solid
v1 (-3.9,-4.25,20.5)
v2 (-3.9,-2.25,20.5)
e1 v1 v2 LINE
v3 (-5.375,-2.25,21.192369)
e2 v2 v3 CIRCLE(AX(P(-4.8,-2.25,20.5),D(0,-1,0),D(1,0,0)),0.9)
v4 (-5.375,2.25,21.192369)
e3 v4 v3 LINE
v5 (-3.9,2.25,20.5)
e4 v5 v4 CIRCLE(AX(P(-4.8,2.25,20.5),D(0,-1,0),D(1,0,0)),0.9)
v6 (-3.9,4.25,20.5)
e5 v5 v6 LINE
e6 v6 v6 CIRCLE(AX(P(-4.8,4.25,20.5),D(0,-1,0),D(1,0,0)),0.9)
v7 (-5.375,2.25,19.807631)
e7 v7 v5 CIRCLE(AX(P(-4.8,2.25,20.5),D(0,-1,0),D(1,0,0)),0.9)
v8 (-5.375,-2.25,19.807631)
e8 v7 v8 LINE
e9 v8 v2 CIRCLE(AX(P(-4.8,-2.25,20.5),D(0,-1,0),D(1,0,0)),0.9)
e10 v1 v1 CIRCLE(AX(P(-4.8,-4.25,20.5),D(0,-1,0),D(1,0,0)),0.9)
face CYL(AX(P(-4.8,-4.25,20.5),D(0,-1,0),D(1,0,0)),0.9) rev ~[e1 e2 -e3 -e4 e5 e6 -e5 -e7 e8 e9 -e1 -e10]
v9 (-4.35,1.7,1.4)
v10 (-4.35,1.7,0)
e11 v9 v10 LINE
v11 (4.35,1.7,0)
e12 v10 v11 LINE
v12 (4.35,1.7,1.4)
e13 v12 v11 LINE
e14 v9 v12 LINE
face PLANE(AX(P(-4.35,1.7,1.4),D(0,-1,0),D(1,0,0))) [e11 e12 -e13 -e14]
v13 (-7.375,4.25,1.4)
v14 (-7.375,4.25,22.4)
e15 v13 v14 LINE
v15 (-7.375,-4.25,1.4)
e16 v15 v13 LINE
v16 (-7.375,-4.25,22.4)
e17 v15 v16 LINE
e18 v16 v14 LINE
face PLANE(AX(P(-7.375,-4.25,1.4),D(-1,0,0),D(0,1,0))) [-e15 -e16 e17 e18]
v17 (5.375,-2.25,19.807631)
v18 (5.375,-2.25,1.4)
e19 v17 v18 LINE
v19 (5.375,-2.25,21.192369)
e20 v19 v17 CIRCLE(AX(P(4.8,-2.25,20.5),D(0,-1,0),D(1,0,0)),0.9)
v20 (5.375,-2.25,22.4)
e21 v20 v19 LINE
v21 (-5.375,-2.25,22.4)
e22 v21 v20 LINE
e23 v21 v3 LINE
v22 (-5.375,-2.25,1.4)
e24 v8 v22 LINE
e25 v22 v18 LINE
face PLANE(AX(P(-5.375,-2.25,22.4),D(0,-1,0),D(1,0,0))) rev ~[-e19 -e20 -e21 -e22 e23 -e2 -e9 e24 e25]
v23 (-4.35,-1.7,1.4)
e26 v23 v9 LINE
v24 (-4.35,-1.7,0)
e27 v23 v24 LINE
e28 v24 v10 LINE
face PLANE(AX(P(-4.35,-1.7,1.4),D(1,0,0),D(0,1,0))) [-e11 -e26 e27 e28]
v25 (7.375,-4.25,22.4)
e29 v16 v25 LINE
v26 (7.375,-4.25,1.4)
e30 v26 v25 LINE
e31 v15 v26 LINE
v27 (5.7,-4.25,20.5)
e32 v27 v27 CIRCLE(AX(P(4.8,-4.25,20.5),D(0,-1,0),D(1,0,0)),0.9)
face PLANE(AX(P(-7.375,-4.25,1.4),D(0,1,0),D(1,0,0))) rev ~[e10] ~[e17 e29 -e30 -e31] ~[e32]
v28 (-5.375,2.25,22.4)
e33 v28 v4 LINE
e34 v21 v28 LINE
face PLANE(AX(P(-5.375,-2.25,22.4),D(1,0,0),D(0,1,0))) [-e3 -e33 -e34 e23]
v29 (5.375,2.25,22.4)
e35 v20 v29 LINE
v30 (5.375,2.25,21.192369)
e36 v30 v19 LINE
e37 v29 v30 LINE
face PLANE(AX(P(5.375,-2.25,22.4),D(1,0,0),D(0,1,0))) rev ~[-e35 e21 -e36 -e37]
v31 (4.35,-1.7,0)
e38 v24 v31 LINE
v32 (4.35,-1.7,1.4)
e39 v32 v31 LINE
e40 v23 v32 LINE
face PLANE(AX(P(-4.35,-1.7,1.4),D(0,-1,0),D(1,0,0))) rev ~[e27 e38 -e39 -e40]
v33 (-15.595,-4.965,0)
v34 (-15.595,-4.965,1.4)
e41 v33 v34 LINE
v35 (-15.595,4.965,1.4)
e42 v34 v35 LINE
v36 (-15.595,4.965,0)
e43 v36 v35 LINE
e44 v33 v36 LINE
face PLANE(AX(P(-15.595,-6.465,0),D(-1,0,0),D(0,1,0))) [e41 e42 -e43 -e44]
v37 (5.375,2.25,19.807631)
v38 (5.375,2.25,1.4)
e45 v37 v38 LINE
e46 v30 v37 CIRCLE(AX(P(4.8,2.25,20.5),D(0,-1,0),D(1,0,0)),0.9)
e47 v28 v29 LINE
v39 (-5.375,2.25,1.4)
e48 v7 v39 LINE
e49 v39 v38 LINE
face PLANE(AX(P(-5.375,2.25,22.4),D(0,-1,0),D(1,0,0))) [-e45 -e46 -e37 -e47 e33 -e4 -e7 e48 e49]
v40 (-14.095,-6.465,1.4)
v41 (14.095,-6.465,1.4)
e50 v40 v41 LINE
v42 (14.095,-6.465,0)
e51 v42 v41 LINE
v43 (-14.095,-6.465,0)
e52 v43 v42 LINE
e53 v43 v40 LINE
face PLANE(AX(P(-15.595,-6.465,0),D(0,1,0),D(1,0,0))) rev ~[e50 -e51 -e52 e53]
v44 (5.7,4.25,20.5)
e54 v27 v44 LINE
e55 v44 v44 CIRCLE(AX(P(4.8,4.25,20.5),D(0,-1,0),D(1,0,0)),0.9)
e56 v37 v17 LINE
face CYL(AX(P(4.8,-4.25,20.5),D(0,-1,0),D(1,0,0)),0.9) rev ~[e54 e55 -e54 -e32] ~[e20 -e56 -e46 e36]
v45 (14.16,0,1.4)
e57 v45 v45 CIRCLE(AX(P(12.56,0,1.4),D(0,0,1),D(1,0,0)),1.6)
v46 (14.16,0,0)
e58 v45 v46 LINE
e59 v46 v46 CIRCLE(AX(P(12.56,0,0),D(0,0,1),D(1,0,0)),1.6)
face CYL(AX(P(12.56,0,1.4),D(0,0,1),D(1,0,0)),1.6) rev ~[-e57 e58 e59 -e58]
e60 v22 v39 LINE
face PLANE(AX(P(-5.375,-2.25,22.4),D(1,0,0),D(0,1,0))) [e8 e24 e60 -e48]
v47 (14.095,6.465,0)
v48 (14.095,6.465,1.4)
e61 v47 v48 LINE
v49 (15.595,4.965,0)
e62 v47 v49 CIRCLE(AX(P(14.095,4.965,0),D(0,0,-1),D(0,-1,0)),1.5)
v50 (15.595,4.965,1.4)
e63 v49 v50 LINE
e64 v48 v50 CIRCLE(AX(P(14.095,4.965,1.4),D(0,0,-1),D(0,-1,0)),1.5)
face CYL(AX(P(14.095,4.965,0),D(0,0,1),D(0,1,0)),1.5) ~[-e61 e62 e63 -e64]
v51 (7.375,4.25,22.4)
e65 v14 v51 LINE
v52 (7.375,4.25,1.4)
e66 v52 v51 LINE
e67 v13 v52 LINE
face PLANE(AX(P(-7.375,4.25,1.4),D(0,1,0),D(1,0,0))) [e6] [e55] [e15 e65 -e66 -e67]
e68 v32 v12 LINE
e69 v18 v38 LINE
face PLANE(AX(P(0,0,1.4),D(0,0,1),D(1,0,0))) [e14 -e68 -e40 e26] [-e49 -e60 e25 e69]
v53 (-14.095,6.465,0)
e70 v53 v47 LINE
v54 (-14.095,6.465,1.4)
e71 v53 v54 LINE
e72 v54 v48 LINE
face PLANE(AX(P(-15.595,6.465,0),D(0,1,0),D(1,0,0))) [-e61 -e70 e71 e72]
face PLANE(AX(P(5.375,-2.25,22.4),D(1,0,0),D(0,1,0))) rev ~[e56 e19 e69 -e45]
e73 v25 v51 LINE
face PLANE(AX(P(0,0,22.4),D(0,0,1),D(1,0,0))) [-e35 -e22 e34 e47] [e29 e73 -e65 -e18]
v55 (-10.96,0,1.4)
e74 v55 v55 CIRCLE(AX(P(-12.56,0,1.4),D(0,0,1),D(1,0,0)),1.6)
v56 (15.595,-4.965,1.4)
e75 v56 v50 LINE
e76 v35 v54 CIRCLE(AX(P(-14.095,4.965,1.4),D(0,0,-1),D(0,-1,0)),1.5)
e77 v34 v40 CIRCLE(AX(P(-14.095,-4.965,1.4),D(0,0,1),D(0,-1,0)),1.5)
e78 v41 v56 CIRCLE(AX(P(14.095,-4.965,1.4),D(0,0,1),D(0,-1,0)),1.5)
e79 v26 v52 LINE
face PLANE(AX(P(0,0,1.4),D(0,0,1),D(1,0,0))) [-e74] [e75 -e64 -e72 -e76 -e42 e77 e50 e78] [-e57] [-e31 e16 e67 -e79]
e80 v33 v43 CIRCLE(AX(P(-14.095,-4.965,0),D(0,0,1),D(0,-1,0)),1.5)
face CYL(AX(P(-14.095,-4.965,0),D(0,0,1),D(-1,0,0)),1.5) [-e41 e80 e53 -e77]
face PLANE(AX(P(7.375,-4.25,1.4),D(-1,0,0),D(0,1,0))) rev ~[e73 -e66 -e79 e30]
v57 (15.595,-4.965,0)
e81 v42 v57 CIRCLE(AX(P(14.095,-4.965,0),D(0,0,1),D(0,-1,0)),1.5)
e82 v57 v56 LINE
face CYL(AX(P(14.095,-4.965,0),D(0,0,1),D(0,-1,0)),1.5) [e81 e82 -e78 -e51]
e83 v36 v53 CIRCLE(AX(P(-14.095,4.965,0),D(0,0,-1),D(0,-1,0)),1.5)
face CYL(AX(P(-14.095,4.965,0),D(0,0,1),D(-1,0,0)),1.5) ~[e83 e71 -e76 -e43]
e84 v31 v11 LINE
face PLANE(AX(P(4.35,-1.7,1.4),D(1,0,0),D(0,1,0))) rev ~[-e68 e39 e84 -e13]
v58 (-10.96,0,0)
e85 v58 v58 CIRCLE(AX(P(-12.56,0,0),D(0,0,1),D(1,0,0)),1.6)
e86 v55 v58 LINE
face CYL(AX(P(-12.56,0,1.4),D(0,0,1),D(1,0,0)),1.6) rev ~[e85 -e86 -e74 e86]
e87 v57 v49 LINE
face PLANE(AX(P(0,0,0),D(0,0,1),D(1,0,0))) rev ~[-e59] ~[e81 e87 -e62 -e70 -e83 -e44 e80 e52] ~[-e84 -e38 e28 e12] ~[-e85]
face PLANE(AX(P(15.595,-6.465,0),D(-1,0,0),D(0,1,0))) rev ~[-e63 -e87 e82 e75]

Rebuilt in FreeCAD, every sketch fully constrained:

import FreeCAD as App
import Part
import Sketcher


def edges_at(feature, points):
    """Names of the edges that pass closest to the given points."""
    edges = feature.Shape.Edges
    near = lambda p: min(range(len(edges)), key=lambda i: edges[i].distToShape(Part.Vertex(*p))[0])
    return sorted({f"Edge{near(p) + 1}" for p in points})

doc = App.newDocument("Part")
body = doc.addObject("PartDesign::Body", "Body")

sketch1 = body.newObject("Sketcher::SketchObject", "Sketch")
sketch1.AttachmentSupport = (doc.getObject("XY_Plane"), [""])
sketch1.MapMode = "FlatFace"
sketch1.addGeometry([
    Part.LineSegment(App.Vector(-16, 6, 0), App.Vector(-16, -6, 0)),
    Part.LineSegment(App.Vector(-16, -6, 0), App.Vector(16, -6, 0)),
    Part.LineSegment(App.Vector(16, -6, 0), App.Vector(16, 6, 0)),
    Part.LineSegment(App.Vector(16, 6, 0), App.Vector(-16, 6, 0)),
], False)
sketch1.addConstraint([
    Sketcher.Constraint("Coincident", 0, 2, 1, 1),
    Sketcher.Constraint("Coincident", 1, 2, 2, 1),
    Sketcher.Constraint("Coincident", 2, 2, 3, 1),
    Sketcher.Constraint("Coincident", 3, 2, 0, 1),
    Sketcher.Constraint("Vertical", 0),
    Sketcher.Constraint("Horizontal", 1),
    Sketcher.Constraint("Vertical", 2),
    Sketcher.Constraint("Horizontal", 3),
    Sketcher.Constraint("Symmetric", 0, 2, 2, 2, -1, 1),
    Sketcher.Constraint("DistanceX", 1, 1, 1, 2, 31.19),
    Sketcher.Constraint("DistanceY", 0, 2, 0, 1, 12.93),
])
pad1 = body.newObject("PartDesign::Pad", "Pad")
pad1.Profile = sketch1
pad1.Length = 1.4

sketch2 = body.newObject("Sketcher::SketchObject", "Sketch001")
sketch2.AttachmentSupport = (doc.getObject("XY_Plane"), [""])
sketch2.MapMode = "FlatFace"
sketch2.AttachmentOffset = App.Placement(App.Vector(0, 0, 1.4), App.Rotation())
sketch2.addGeometry([
    Part.Circle(App.Vector(-12.6, 0, 0), App.Vector(0, 0, 1), 1.6),
    Part.Circle(App.Vector(12.6, 0, 0), App.Vector(0, 0, 1), 1.6),
], False)
sketch2.addConstraint([
    Sketcher.Constraint("Equal", 0, 1),
    Sketcher.Constraint("Symmetric", 0, 3, 1, 3, -1, 1),
    Sketcher.Constraint("PointOnObject", 0, 3, -1),
    Sketcher.Constraint("Diameter", 0, 3.2),
    Sketcher.Constraint("DistanceX", 0, 3, -1, 1, 12.56),
])
pocket1 = body.newObject("PartDesign::Pocket", "Pocket")
pocket1.Profile = sketch2
pocket1.Type = "ThroughAll"
doc.recompute()

fillet = body.newObject("PartDesign::Fillet", "Fillet")
fillet.Base = (pocket1, edges_at(pocket1, [
    (15.595, -6.465, 0.7),
    (15.595, 6.465, 0.7),
    (-15.595, -6.465, 0.7),
    (-15.595, 6.465, 0.7),
]))
fillet.Radius = 1.5

sketch3 = body.newObject("Sketcher::SketchObject", "Sketch002")
sketch3.AttachmentSupport = (doc.getObject("XY_Plane"), [""])
sketch3.MapMode = "FlatFace"
sketch3.AttachmentOffset = App.Placement(App.Vector(0, 0, 1.4), App.Rotation())
sketch3.addGeometry([
    Part.LineSegment(App.Vector(-4.3, 1.7, 0), App.Vector(-4.3, -1.7, 0)),
    Part.LineSegment(App.Vector(-4.3, -1.7, 0), App.Vector(4.3, -1.7, 0)),
    Part.LineSegment(App.Vector(4.3, -1.7, 0), App.Vector(4.3, 1.7, 0)),
    Part.LineSegment(App.Vector(4.3, 1.7, 0), App.Vector(-4.3, 1.7, 0)),
], False)
sketch3.addConstraint([
    Sketcher.Constraint("Coincident", 0, 2, 1, 1),
    Sketcher.Constraint("Coincident", 1, 2, 2, 1),
    Sketcher.Constraint("Coincident", 2, 2, 3, 1),
    Sketcher.Constraint("Coincident", 3, 2, 0, 1),
    Sketcher.Constraint("Vertical", 0),
    Sketcher.Constraint("Horizontal", 1),
    Sketcher.Constraint("Vertical", 2),
    Sketcher.Constraint("Horizontal", 3),
    Sketcher.Constraint("Symmetric", 0, 2, 2, 2, -1, 1),
    Sketcher.Constraint("DistanceX", 1, 1, 1, 2, 8.7),
    Sketcher.Constraint("DistanceY", 0, 2, 0, 1, 3.4),
])
pocket2 = body.newObject("PartDesign::Pocket", "Pocket001")
pocket2.Profile = sketch3
pocket2.Type = "ThroughAll"

sketch4 = body.newObject("Sketcher::SketchObject", "Sketch003")
sketch4.AttachmentSupport = (doc.getObject("XY_Plane"), [""])
sketch4.MapMode = "FlatFace"
sketch4.AttachmentOffset = App.Placement(App.Vector(0, 0, 1.4), App.Rotation())
sketch4.addGeometry([
    Part.LineSegment(App.Vector(-7, 4, 0), App.Vector(-7, -4, 0)),
    Part.LineSegment(App.Vector(-7, -4, 0), App.Vector(7, -4, 0)),
    Part.LineSegment(App.Vector(7, -4, 0), App.Vector(7, 4, 0)),
    Part.LineSegment(App.Vector(7, 4, 0), App.Vector(-7, 4, 0)),
], False)
sketch4.addConstraint([
    Sketcher.Constraint("Coincident", 0, 2, 1, 1),
    Sketcher.Constraint("Coincident", 1, 2, 2, 1),
    Sketcher.Constraint("Coincident", 2, 2, 3, 1),
    Sketcher.Constraint("Coincident", 3, 2, 0, 1),
    Sketcher.Constraint("Vertical", 0),
    Sketcher.Constraint("Horizontal", 1),
    Sketcher.Constraint("Vertical", 2),
    Sketcher.Constraint("Horizontal", 3),
    Sketcher.Constraint("Symmetric", 0, 2, 2, 2, -1, 1),
    Sketcher.Constraint("DistanceY", 0, 2, 0, 1, 8.5),
    Sketcher.Constraint("DistanceX", 1, 1, 1, 2, 14.75),
])
pad2 = body.newObject("PartDesign::Pad", "Pad001")
pad2.Profile = sketch4
pad2.Length = 21

sketch5 = body.newObject("Sketcher::SketchObject", "Sketch004")
sketch5.AttachmentSupport = (doc.getObject("XY_Plane"), [""])
sketch5.MapMode = "FlatFace"
sketch5.AttachmentOffset = App.Placement(App.Vector(0, 0, 22.4), App.Rotation())
sketch5.addGeometry([
    Part.LineSegment(App.Vector(-5.4, 2.2, 0), App.Vector(-5.4, -2.2, 0)),
    Part.LineSegment(App.Vector(-5.4, -2.2, 0), App.Vector(5.4, -2.2, 0)),
    Part.LineSegment(App.Vector(5.4, -2.2, 0), App.Vector(5.4, 2.2, 0)),
    Part.LineSegment(App.Vector(5.4, 2.2, 0), App.Vector(-5.4, 2.2, 0)),
], False)
sketch5.addConstraint([
    Sketcher.Constraint("Coincident", 0, 2, 1, 1),
    Sketcher.Constraint("Coincident", 1, 2, 2, 1),
    Sketcher.Constraint("Coincident", 2, 2, 3, 1),
    Sketcher.Constraint("Coincident", 3, 2, 0, 1),
    Sketcher.Constraint("Vertical", 0),
    Sketcher.Constraint("Horizontal", 1),
    Sketcher.Constraint("Vertical", 2),
    Sketcher.Constraint("Horizontal", 3),
    Sketcher.Constraint("Symmetric", 0, 2, 2, 2, -1, 1),
    Sketcher.Constraint("DistanceY", 0, 2, 0, 1, 4.5),
    Sketcher.Constraint("DistanceX", 1, 1, 1, 2, 10.75),
])
pocket3 = body.newObject("PartDesign::Pocket", "Pocket002")
pocket3.Profile = sketch5
pocket3.Length = 21

sketch6 = body.newObject("Sketcher::SketchObject", "Sketch005")
sketch6.AttachmentSupport = (doc.getObject("XZ_Plane"), [""])
sketch6.MapMode = "FlatFace"
sketch6.AttachmentOffset = App.Placement(App.Vector(0, 0, 4.25), App.Rotation())
sketch6.addGeometry([
    Part.Circle(App.Vector(-4.8, 20.5, 0), App.Vector(0, 0, 1), 0.9),
    Part.Circle(App.Vector(4.8, 20.5, 0), App.Vector(0, 0, 1), 0.9),
], False)
sketch6.addConstraint([
    Sketcher.Constraint("Equal", 0, 1),
    Sketcher.Constraint("Symmetric", 0, 3, 1, 3, -2),
    Sketcher.Constraint("Diameter", 0, 1.8),
    Sketcher.Constraint("DistanceX", 0, 3, -1, 1, 4.8),
    Sketcher.Constraint("DistanceY", -1, 1, 0, 3, 20.5),
])
pocket4 = body.newObject("PartDesign::Pocket", "Pocket003")
pocket4.Profile = sketch6
pocket4.Type = "ThroughAll"

doc.recompute()
